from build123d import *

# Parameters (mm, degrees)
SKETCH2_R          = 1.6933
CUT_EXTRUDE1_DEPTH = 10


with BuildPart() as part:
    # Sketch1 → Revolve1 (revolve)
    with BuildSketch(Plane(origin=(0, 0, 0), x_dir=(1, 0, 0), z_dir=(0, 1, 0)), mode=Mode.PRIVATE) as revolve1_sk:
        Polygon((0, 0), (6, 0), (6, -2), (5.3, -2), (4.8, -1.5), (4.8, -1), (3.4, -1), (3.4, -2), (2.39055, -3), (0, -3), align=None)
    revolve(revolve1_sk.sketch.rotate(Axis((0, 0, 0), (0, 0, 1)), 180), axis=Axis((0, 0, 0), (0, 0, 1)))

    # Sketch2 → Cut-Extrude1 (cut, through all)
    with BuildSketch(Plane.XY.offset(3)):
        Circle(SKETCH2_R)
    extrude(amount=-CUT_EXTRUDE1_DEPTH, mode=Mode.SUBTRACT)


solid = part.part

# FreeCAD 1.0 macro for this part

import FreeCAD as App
import Part
import Sketcher
Q = App.Units.Quantity


def add_polygon(sketch, points):
    """Adds a closed chain of lines whose ends are joined by coincident constraints."""
    first, n = sketch.GeometryCount, len(points)
    for a, b in zip(points, points[1:] + points[:1]):
        sketch.addGeometry(Part.LineSegment(App.Vector(*a, 0), App.Vector(*b, 0)), False)
    for i in range(n):
        sketch.addConstraint(Sketcher.Constraint("Coincident", first + i, 2, first + (i + 1) % n, 1))

doc = App.newDocument("Part")
body = doc.addObject("PartDesign::Body", "Body")

# Sketch on XZ plane
sketch1 = body.newObject("Sketcher::SketchObject", "Sketch")
sketch1.AttachmentSupport = (doc.getObject("XZ_Plane"), [""])
sketch1.MapMode = "FlatFace"
add_polygon(sketch1, [(6, 0), (0, 0), (0, 3), (2.4, 3), (3.4, 2), (3.4, 1), (4.8, 1), (4.8, 1.5), (5.3, 2), (6, 2)])  # lines 0-9
sketch1.addConstraint([
    Sketcher.Constraint("Horizontal", 0),
    Sketcher.Constraint("Vertical", 1),
    Sketcher.Constraint("Horizontal", 2),
    Sketcher.Constraint("Vertical", 4),
    Sketcher.Constraint("Horizontal", 5),
    Sketcher.Constraint("Vertical", 6),
    Sketcher.Constraint("Horizontal", 8),
    Sketcher.Constraint("Vertical", 9),
    Sketcher.Constraint("Coincident", 0, 2, -1, 1),
    Sketcher.Constraint("Horizontal", 3, 2, 7, 2),
    Sketcher.Constraint("DistanceX", 0, 2, 0, 1, 6.0),
    Sketcher.Constraint("DistanceY", 1, 1, 1, 2, 3.0),
    Sketcher.Constraint("DistanceY", 4, 2, 4, 1, 1.0),
    Sketcher.Constraint("DistanceY", 9, 2, 9, 1, 2.0),
    Sketcher.Constraint("Angle", 7, Q("45 deg")),
    Sketcher.Constraint("DistanceX", 5, 1, 5, 2, 1.4),
    Sketcher.Constraint("DistanceX", 8, 1, 8, 2, 0.7),
    Sketcher.Constraint("DistanceY", 6, 1, 6, 2, 0.5),
    Sketcher.Constraint("DistanceX", 2, 1, 2, 2, 2.39055),
])
revolution = body.newObject("PartDesign::Revolution", "Revolution")
revolution.Profile = sketch1
revolution.ReferenceAxis = (sketch1, ["V_Axis"])
revolution.Angle = 360

# Sketch on XY plane
sketch2 = body.newObject("Sketcher::SketchObject", "Sketch001")
sketch2.AttachmentSupport = (doc.getObject("XY_Plane"), [""])
sketch2.MapMode = "FlatFace"
sketch2.AttachmentOffset = App.Placement(App.Vector(0, 0, 3), App.Rotation())
sketch2.addGeometry(Part.Circle(App.Vector(0, 0, 0), App.Vector(0, 0, 1), 1.7), False)
sketch2.addConstraint([
    Sketcher.Constraint("Coincident", 0, 3, -1, 1),
    Sketcher.Constraint("Diameter", 0, 3.3866),
])
pocket1 = body.newObject("PartDesign::Pocket", "Pocket")
pocket1.Profile = sketch2
pocket1.Type = "ThroughAll"

doc.recompute()
